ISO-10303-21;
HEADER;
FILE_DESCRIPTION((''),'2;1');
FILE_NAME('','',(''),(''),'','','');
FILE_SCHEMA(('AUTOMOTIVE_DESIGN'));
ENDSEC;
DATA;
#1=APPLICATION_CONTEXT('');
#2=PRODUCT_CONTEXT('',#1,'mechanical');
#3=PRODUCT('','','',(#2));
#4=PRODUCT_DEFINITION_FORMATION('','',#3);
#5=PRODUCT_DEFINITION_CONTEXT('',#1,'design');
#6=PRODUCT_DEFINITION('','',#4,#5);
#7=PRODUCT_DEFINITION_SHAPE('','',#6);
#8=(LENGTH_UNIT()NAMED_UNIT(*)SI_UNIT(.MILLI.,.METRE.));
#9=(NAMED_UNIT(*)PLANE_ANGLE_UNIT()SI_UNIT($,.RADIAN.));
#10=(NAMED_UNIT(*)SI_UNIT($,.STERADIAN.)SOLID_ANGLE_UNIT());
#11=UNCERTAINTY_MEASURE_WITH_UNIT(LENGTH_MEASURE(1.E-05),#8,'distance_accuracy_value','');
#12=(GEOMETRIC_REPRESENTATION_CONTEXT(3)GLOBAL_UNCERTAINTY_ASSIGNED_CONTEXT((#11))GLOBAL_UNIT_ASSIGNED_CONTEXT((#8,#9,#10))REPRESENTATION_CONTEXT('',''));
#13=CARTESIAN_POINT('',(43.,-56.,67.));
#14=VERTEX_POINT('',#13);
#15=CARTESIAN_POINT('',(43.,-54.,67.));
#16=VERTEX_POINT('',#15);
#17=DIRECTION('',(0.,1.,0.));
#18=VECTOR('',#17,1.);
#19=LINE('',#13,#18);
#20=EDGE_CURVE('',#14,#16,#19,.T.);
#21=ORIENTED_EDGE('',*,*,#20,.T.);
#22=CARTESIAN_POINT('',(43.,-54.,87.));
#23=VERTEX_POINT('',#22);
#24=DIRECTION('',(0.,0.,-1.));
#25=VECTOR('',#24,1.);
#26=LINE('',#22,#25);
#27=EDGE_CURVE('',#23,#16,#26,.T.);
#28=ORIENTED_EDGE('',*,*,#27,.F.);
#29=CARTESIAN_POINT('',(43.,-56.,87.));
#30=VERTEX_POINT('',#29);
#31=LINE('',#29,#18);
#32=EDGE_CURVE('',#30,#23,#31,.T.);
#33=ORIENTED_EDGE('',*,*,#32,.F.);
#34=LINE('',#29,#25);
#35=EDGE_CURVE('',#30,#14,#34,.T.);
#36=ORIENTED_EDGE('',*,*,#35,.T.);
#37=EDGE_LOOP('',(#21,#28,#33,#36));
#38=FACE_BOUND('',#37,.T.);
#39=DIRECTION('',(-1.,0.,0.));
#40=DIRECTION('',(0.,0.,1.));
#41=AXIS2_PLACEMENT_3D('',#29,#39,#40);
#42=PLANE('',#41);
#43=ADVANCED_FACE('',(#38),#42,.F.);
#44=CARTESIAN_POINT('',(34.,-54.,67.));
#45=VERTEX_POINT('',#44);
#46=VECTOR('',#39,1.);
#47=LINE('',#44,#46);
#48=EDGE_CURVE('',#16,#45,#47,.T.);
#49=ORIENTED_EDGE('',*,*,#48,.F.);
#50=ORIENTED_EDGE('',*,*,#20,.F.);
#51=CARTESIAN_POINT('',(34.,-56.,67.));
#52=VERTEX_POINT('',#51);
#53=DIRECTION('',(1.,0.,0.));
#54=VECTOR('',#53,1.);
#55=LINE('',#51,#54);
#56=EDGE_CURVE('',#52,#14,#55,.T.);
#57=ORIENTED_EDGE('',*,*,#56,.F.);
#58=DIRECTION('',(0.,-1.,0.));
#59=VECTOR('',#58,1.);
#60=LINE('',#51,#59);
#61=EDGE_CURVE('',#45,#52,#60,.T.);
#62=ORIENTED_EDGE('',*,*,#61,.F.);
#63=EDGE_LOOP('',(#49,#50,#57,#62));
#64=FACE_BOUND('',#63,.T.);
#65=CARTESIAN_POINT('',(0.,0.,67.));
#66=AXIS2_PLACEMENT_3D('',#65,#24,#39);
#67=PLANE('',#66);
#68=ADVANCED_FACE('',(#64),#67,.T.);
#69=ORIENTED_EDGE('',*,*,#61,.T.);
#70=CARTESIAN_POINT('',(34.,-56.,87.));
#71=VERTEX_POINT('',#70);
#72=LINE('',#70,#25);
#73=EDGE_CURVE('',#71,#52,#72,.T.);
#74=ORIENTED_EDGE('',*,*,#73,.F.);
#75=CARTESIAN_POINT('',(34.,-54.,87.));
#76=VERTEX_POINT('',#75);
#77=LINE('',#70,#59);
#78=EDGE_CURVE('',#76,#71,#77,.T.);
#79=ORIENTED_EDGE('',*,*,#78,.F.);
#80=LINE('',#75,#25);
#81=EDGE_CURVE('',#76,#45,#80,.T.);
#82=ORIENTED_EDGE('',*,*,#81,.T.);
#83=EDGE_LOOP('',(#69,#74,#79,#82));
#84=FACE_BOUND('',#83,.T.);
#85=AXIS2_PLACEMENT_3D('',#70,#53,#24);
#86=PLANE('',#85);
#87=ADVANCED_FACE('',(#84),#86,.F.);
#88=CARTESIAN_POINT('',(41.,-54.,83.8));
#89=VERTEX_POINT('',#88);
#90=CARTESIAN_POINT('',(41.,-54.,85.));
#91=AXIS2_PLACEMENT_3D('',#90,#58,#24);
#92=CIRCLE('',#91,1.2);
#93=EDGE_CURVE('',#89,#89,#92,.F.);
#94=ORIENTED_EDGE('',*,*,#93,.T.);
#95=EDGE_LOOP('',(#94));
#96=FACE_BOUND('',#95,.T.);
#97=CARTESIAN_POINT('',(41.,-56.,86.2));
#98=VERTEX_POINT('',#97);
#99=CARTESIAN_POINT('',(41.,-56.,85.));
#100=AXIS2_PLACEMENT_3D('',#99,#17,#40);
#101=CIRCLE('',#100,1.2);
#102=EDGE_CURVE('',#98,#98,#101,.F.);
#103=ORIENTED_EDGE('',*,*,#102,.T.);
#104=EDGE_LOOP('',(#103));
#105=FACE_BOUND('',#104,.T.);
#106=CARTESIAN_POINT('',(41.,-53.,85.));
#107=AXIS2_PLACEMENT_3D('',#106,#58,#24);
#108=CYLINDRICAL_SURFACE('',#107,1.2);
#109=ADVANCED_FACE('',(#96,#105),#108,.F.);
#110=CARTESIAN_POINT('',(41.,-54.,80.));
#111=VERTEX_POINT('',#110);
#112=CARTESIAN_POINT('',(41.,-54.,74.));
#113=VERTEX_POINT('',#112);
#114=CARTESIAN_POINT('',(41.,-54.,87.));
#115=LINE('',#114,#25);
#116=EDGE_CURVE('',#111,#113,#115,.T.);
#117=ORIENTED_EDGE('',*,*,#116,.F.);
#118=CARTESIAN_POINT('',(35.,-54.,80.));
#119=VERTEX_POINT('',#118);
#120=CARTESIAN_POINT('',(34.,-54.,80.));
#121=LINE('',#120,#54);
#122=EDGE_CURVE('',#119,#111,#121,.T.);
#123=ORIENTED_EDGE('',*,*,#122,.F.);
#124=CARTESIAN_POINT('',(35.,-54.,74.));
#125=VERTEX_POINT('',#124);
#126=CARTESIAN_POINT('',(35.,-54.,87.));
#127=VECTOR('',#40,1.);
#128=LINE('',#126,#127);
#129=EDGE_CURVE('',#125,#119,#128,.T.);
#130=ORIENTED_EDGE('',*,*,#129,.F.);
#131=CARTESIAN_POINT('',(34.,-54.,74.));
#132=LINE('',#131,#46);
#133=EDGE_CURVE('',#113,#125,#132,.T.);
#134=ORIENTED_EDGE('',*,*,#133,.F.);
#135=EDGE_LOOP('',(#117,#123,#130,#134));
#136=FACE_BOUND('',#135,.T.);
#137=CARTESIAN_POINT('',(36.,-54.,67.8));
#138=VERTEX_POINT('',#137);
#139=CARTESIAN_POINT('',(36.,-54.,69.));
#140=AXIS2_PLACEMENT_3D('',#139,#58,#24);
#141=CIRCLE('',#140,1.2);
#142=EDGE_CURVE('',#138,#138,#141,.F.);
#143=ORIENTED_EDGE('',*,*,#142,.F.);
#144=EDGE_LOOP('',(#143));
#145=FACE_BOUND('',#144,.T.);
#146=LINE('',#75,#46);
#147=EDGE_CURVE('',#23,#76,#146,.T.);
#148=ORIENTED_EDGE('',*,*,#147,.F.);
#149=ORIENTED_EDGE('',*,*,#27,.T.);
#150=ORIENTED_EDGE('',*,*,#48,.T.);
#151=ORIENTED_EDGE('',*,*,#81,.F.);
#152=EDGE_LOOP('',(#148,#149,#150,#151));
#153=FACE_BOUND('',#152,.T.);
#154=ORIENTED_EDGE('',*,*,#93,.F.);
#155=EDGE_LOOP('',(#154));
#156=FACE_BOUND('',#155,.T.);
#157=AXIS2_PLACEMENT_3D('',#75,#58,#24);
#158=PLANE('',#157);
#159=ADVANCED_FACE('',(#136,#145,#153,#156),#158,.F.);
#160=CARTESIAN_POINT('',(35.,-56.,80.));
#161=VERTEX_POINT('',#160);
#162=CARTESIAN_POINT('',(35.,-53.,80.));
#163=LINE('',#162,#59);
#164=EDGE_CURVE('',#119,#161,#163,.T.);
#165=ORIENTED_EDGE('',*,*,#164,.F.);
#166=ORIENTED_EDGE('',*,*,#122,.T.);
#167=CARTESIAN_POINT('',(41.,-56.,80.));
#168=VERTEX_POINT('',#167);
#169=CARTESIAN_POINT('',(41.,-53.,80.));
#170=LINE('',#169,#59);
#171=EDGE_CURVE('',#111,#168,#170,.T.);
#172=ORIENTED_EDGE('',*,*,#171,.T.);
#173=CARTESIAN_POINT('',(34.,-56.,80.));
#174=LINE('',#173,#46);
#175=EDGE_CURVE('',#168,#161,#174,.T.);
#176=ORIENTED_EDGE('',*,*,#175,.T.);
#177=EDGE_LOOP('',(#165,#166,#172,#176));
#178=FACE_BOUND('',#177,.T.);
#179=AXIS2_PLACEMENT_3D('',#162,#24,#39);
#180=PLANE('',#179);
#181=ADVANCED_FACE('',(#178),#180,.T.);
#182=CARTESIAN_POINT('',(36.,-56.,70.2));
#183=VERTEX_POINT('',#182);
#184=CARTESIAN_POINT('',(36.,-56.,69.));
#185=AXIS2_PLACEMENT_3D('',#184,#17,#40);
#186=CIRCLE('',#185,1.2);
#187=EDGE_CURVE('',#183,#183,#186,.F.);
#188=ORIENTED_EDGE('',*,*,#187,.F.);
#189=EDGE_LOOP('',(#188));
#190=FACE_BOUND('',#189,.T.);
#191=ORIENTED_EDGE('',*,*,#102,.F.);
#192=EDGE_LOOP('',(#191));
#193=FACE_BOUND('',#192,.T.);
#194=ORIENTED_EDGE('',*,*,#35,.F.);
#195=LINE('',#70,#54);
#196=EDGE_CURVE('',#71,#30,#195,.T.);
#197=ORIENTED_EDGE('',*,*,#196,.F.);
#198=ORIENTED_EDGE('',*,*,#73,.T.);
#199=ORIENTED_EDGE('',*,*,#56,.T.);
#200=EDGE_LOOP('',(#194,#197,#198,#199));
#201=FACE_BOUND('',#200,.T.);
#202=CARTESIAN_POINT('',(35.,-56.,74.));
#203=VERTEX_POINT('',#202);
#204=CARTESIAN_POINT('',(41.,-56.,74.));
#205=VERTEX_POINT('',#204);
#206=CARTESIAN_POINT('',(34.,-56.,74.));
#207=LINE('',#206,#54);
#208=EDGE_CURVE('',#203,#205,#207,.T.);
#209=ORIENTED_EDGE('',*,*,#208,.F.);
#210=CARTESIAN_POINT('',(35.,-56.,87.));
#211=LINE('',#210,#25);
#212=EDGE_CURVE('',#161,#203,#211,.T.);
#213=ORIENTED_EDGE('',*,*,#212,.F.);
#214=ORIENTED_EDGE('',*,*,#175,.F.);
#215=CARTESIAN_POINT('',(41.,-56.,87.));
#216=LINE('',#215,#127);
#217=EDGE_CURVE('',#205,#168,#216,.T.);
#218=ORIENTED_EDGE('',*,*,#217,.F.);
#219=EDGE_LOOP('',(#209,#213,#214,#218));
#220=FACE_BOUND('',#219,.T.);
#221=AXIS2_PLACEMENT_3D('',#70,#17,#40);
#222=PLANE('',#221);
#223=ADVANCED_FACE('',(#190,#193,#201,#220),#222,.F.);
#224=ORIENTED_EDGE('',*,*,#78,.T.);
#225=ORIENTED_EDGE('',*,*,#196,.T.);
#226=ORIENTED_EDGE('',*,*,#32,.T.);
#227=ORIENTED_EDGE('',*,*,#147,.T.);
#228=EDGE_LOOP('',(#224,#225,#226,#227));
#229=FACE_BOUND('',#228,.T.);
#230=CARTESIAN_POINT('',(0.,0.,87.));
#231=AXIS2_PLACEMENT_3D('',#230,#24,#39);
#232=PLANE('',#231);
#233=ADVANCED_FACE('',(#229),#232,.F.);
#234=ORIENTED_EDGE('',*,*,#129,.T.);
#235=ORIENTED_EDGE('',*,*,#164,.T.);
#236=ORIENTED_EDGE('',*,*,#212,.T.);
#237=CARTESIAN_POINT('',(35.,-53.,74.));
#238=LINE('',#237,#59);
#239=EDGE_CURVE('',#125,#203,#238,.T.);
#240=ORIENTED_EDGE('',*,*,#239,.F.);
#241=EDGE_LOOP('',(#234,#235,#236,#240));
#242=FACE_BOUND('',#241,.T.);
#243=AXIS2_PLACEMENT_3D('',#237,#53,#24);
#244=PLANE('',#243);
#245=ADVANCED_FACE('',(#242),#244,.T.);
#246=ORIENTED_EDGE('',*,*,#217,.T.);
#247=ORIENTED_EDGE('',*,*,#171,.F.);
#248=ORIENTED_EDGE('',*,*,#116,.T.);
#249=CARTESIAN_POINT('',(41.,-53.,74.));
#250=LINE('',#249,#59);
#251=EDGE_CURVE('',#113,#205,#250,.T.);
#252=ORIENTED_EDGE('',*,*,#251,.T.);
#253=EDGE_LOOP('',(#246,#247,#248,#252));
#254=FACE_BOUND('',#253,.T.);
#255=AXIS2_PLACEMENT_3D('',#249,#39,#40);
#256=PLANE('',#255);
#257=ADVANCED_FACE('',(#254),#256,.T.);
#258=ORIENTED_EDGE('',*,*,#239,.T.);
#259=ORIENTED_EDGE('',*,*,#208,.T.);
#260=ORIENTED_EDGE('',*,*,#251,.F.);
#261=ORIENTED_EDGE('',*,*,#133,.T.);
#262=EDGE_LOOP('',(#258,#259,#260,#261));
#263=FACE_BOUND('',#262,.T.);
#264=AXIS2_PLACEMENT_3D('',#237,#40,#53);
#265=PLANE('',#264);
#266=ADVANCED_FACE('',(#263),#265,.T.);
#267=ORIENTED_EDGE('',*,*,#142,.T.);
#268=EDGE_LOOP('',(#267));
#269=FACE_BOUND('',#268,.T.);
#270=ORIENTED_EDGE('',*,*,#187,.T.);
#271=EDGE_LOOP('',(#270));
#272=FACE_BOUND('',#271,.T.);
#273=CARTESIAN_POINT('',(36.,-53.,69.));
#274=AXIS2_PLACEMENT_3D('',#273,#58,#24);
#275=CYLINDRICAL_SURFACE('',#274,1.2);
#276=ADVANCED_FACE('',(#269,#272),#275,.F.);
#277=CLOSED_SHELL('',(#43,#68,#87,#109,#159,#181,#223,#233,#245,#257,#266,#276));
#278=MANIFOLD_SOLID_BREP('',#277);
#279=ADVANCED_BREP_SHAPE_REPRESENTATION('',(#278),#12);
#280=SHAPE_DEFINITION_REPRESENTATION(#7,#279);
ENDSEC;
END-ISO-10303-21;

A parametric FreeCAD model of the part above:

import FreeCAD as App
import Part
import Sketcher

V = App.Vector
Q = App.Units.Quantity


def add_polygon(sketch, points):
    """Adds a closed chain of lines whose ends are joined by coincident constraints."""
    first, n = sketch.GeometryCount, len(points)
    for a, b in zip(points, points[1:] + points[:1]):
        sketch.addGeometry(Part.LineSegment(App.Vector(*a, 0), App.Vector(*b, 0)), False)
    for i in range(n):
        sketch.addConstraint(Sketcher.Constraint("Coincident", first + i, 2, first + (i + 1) % n, 1))

doc = App.newDocument("Part")
params = doc.addObject("Spreadsheet::Sheet", "Params")
for row, (alias, value) in enumerate([
    ("sketch1_width", "9 mm"),
    ("sketch1_height", "2 mm"),
    ("pad1_length", "20 mm"),
    ("sketch2_width", "6 mm"),
    ("pocket1_length", "4 mm"),
    ("sketch3_diameter", "2.4 mm"),
    ("pocket2_length", "4 mm"),
], start=1):
    params.set(f"A{row}", alias)
    params.set(f"B{row}", "=" + value)
    params.setAlias(f"B{row}", alias)

body = doc.addObject("PartDesign::Body", "Body")

# Sketch on XY plane
sketch1 = body.newObject("Sketcher::SketchObject", "Sketch")
sketch1.AttachmentSupport = (doc.getObject("XY_Plane"), [""])
sketch1.MapMode = "FlatFace"
sketch1.AttachmentOffset = App.Placement(V(0, 0, 67), App.Rotation())
add_polygon(sketch1, [(34, -54), (34, -56), (43, -56), (43, -54)])  # lines 0-3
sketch1.addConstraint([
    Sketcher.Constraint("Vertical", 0),
    Sketcher.Constraint("Horizontal", 1),
    Sketcher.Constraint("Vertical", 2),
    Sketcher.Constraint("Horizontal", 3),
    Sketcher.Constraint("DistanceX", 1, 1, 1, 2, Q("9 mm")),
    Sketcher.Constraint("DistanceY", 0, 2, 0, 1, Q("2 mm")),
    Sketcher.Constraint("DistanceX", -1, 1, 0, 2, Q("34 mm")),
    Sketcher.Constraint("DistanceY", 0, 2, -1, 1, Q("56 mm")),
])
sketch1.setExpression("Constraints[8]", "Params.sketch1_width")
sketch1.setExpression("Constraints[9]", "Params.sketch1_height")
pad1 = body.newObject("PartDesign::Pad", "Pad")
pad1.Profile = sketch1
pad1.setExpression("Length", "Params.pad1_length")

# Sketch on XZ plane
sketch2 = body.newObject("Sketcher::SketchObject", "Sketch001")
sketch2.AttachmentSupport = (doc.getObject("XZ_Plane"), [""])
sketch2.MapMode = "FlatFace"
sketch2.AttachmentOffset = App.Placement(V(0, 0, 57), App.Rotation())
add_polygon(sketch2, [(35, 74), (35, 80), (41, 80), (41, 74)])  # lines 0-3
sketch2.addConstraint([
    Sketcher.Constraint("Vertical", 0),
    Sketcher.Constraint("Horizontal", 1),
    Sketcher.Constraint("Vertical", 2),
    Sketcher.Constraint("Horizontal", 3),
    Sketcher.Constraint("Equal", 3, 0),
    Sketcher.Constraint("DistanceX", 1, 1, 1, 2, Q("6 mm")),
    Sketcher.Constraint("DistanceX", -1, 1, 0, 2, Q("35 mm")),
    Sketcher.Constraint("DistanceY", -1, 1, 0, 2, Q("80 mm")),
])
sketch2.setExpression("Constraints[9]", "Params.sketch2_width")
pocket1 = body.newObject("PartDesign::Pocket", "Pocket")
pocket1.Profile = sketch2
pocket1.setExpression("Length", "Params.pocket1_length")

# Sketch on XZ plane
sketch3 = body.newObject("Sketcher::SketchObject", "Sketch002")
sketch3.AttachmentSupport = (doc.getObject("XZ_Plane"), [""])
sketch3.MapMode = "FlatFace"
sketch3.AttachmentOffset = App.Placement(V(0, 0, 57), App.Rotation())
sketch3.addGeometry([
    Part.Circle(V(36, 69, 0), V(0, 0, 1), 1.2),
    Part.Circle(V(41, 85, 0), V(0, 0, 1), 1.2),
], False)
sketch3.addConstraint([
    Sketcher.Constraint("Equal", 0, 1),
    Sketcher.Constraint("Diameter", 0, Q("2.4 mm")),
    Sketcher.Constraint("DistanceX", -1, 1, 0, 3, Q("36 mm")),
    Sketcher.Constraint("DistanceY", -1, 1, 0, 3, Q("69 mm")),
    Sketcher.Constraint("DistanceX", -1, 1, 1, 3, Q("41 mm")),
    Sketcher.Constraint("DistanceY", -1, 1, 1, 3, Q("85 mm")),
])
sketch3.setExpression("Constraints[1]", "Params.sketch3_diameter")
pocket2 = body.newObject("PartDesign::Pocket", "Pocket001")
pocket2.Profile = sketch3
pocket2.setExpression("Length", "Params.pocket2_length")

doc.recompute()
